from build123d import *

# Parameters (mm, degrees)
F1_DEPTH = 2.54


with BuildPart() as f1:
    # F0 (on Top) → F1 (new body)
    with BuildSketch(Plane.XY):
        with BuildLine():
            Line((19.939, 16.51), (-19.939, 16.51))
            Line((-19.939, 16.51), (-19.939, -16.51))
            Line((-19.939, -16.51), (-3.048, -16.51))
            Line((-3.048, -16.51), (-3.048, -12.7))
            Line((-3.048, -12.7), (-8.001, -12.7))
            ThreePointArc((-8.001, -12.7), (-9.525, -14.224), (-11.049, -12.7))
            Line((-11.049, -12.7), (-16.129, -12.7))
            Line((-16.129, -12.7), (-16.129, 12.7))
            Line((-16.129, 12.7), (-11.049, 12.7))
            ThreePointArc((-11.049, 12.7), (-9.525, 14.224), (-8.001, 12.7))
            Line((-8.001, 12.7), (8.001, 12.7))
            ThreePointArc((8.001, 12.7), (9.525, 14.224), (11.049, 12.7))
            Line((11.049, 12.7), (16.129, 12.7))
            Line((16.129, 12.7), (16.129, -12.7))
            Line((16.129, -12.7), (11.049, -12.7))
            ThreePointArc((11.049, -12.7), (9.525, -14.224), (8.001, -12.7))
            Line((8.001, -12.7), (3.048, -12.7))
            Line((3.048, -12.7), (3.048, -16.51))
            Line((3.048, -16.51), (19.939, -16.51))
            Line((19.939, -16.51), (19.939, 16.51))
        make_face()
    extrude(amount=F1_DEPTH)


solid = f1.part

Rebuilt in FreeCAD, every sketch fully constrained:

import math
import FreeCAD as App
import Part
import Sketcher

V = App.Vector
Q = App.Units.Quantity

doc = App.newDocument("Part")
params = doc.addObject("Spreadsheet::Sheet", "Params")
for row, (alias, value) in enumerate([
    ("sketch1_height", "1 in"),
    ("sketch1_radius", "0.06 in"),
    ("sketch1_width", "0.2 in"),
    ("sketch1_height2", "1.3 in"),
    ("sketch1_width2", "1.57 in"),
    ("pad1_length", "0.1 in"),
], start=1):
    params.set(f"A{row}", alias)
    params.set(f"B{row}", "=" + value)
    params.setAlias(f"B{row}", alias)

body = doc.addObject("PartDesign::Body", "Body")

# Sketch on XY plane
sketch1 = body.newObject("Sketcher::SketchObject", "Sketch")
sketch1.AttachmentSupport = (doc.getObject("XY_Plane"), [""])
sketch1.MapMode = "FlatFace"
sketch1.addGeometry([
    Part.LineSegment(V(19.9, 16.5, 0), V(-19.9, 16.5, 0)),  # 0
    Part.LineSegment(V(-19.9, 16.5, 0), V(-19.9, -16.5, 0)),  # 1
    Part.LineSegment(V(-19.9, -16.5, 0), V(-3, -16.5, 0)),  # 2
    Part.LineSegment(V(-3, -16.5, 0), V(-3, -12.7, 0)),  # 3
    Part.LineSegment(V(-3, -12.7, 0), V(-8, -12.7, 0)),  # 4
    Part.ArcOfCircle(Part.Circle(V(-9.5, -12.7, 0), V(0, 0, 1), 1.5), math.radians(180), math.radians(360)),  # 5
    Part.LineSegment(V(-11, -12.7, 0), V(-16.1, -12.7, 0)),  # 6
    Part.LineSegment(V(-16.1, -12.7, 0), V(-16.1, 12.7, 0)),  # 7
    Part.LineSegment(V(-16.1, 12.7, 0), V(-11, 12.7, 0)),  # 8
    Part.ArcOfCircle(Part.Circle(V(-9.5, 12.7, 0), V(0, 0, 1), 1.5), math.radians(0), math.radians(180)),  # 9
    Part.LineSegment(V(-8, 12.7, 0), V(8, 12.7, 0)),  # 10
    Part.ArcOfCircle(Part.Circle(V(9.5, 12.7, 0), V(0, 0, 1), 1.5), math.radians(0), math.radians(180)),  # 11
    Part.LineSegment(V(11, 12.7, 0), V(16.1, 12.7, 0)),  # 12
    Part.LineSegment(V(16.1, 12.7, 0), V(16.1, -12.7, 0)),  # 13
    Part.LineSegment(V(16.1, -12.7, 0), V(11, -12.7, 0)),  # 14
    Part.ArcOfCircle(Part.Circle(V(9.5, -12.7, 0), V(0, 0, 1), 1.5), math.radians(180), math.radians(360)),  # 15
    Part.LineSegment(V(8, -12.7, 0), V(3, -12.7, 0)),  # 16
    Part.LineSegment(V(3, -12.7, 0), V(3, -16.5, 0)),  # 17
    Part.LineSegment(V(3, -16.5, 0), V(19.9, -16.5, 0)),  # 18
    Part.LineSegment(V(19.9, -16.5, 0), V(19.9, 16.5, 0)),  # 19
], False)
sketch1.addConstraint([
    Sketcher.Constraint("Coincident", 0, 2, 1, 1),
    Sketcher.Constraint("Coincident", 1, 2, 2, 1),
    Sketcher.Constraint("Coincident", 2, 2, 3, 1),
    Sketcher.Constraint("Coincident", 3, 2, 4, 1),
    Sketcher.Constraint("Coincident", 4, 2, 5, 2),
    Sketcher.Constraint("Coincident", 5, 1, 6, 1),
    Sketcher.Constraint("Coincident", 6, 2, 7, 1),
    Sketcher.Constraint("Coincident", 7, 2, 8, 1),
    Sketcher.Constraint("Coincident", 8, 2, 9, 2),
    Sketcher.Constraint("Coincident", 9, 1, 10, 1),
    Sketcher.Constraint("Coincident", 10, 2, 11, 2),
    Sketcher.Constraint("Coincident", 11, 1, 12, 1),
    Sketcher.Constraint("Coincident", 12, 2, 13, 1),
    Sketcher.Constraint("Coincident", 13, 2, 14, 1),
    Sketcher.Constraint("Coincident", 14, 2, 15, 2),
    Sketcher.Constraint("Coincident", 15, 1, 16, 1),
    Sketcher.Constraint("Coincident", 16, 2, 17, 1),
    Sketcher.Constraint("Coincident", 17, 2, 18, 1),
    Sketcher.Constraint("Coincident", 18, 2, 19, 1),
    Sketcher.Constraint("Coincident", 19, 2, 0, 1),
    Sketcher.Constraint("Horizontal", 0),
    Sketcher.Constraint("Vertical", 1),
    Sketcher.Constraint("Horizontal", 2),
    Sketcher.Constraint("Vertical", 3),
    Sketcher.Constraint("Horizontal", 4),
    Sketcher.Constraint("Horizontal", 6),
    Sketcher.Constraint("Vertical", 7),
    Sketcher.Constraint("Horizontal", 8),
    Sketcher.Constraint("Horizontal", 10),
    Sketcher.Constraint("Horizontal", 12),
    Sketcher.Constraint("Vertical", 13),
    Sketcher.Constraint("Horizontal", 14),
    Sketcher.Constraint("Horizontal", 16),
    Sketcher.Constraint("Vertical", 17),
    Sketcher.Constraint("Horizontal", 18),
    Sketcher.Constraint("Vertical", 19),
    Sketcher.Constraint("Equal", 5, 9),
    Sketcher.Constraint("Equal", 9, 11),
    Sketcher.Constraint("Equal", 11, 15),
    Sketcher.Constraint("Symmetric", 5, 3, 11, 3, -1, 1),
    Sketcher.Constraint("Symmetric", 9, 3, 15, 3, -1, 1),
    Sketcher.Constraint("Symmetric", 6, 2, 12, 2, -1, 1),
    Sketcher.Constraint("Symmetric", 0, 2, 18, 2, -1, 1),
    Sketcher.Constraint("Symmetric", 9, 3, 11, 3, -2),
    Sketcher.Constraint("Symmetric", 3, 2, 16, 2, -2),
    Sketcher.Constraint("Horizontal", 15, 3, 3, 2),
    Sketcher.Constraint("Horizontal", 4, 2, 5, 1),
    Sketcher.Constraint("Horizontal", 11, 3, 7, 2),
    Sketcher.Constraint("Horizontal", 8, 2, 9, 1),
    Sketcher.Constraint("Horizontal", 6, 2, 13, 2),
    Sketcher.Constraint("Horizontal", 2, 2, 17, 2),
    Sketcher.Constraint("DistanceY", 7, 1, 7, 2, Q("1 in")),
    Sketcher.Constraint("Radius", 5, Q("0.06 in")),
    Sketcher.Constraint("DistanceX", 6, 2, 6, 1, Q("0.2 in")),
    Sketcher.Constraint("DistanceY", 1, 2, 1, 1, Q("1.3 in")),
    Sketcher.Constraint("DistanceX", 0, 2, 0, 1, Q("1.57 in")),
    Sketcher.Constraint("DistanceX", 10, 1, 10, 2, Q("0.63 in")),
    Sketcher.Constraint("DistanceX", 2, 1, 2, 2, Q("0.665 in")),
])
sketch1.setExpression("Constraints[51]", "Params.sketch1_height")
sketch1.setExpression("Constraints[52]", "Params.sketch1_radius")
sketch1.setExpression("Constraints[53]", "Params.sketch1_width")
sketch1.setExpression("Constraints[54]", "Params.sketch1_height2")
sketch1.setExpression("Constraints[55]", "Params.sketch1_width2")
pad1 = body.newObject("PartDesign::Pad", "Pad")
pad1.Profile = sketch1
pad1.setExpression("Length", "Params.pad1_length")

doc.recompute()
